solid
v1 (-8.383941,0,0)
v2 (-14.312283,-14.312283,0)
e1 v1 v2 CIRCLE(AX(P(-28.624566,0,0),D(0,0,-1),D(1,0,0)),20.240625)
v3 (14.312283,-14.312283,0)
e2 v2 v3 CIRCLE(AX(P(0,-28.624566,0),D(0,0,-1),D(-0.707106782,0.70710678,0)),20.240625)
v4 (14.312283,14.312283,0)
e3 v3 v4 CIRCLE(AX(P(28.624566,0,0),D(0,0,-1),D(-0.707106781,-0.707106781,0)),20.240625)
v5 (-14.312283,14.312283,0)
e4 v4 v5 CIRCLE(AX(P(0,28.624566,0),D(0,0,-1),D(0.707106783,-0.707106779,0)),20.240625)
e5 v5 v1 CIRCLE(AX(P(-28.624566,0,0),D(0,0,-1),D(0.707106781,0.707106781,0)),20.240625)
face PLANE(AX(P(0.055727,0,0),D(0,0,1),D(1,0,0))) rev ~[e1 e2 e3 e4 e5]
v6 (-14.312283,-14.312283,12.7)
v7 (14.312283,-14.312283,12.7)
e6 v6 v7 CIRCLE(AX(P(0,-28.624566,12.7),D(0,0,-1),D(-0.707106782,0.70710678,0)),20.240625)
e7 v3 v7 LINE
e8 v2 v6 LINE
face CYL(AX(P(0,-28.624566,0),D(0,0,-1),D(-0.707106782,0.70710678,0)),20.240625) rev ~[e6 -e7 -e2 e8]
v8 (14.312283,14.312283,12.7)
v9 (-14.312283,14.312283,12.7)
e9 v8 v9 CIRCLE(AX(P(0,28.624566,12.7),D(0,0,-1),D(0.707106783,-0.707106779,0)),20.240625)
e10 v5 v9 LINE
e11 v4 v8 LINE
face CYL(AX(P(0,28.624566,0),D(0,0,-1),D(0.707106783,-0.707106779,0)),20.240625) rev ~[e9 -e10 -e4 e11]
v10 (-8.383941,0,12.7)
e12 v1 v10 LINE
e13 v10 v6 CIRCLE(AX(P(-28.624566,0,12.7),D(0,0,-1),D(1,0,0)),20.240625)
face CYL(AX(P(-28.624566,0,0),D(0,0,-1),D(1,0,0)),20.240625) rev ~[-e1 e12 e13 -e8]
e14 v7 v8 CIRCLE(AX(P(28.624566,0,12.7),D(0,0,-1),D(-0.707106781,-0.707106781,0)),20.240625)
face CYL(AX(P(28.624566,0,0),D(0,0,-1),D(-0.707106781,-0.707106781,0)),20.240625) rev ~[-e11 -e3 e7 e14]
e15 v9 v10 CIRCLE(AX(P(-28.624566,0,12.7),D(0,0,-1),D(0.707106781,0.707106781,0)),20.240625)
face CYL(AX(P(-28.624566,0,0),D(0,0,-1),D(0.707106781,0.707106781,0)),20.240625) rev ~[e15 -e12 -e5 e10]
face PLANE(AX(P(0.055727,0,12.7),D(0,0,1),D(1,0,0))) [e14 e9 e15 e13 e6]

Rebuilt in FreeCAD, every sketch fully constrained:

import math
import FreeCAD as App
import Part
import Sketcher
from FreeCAD import Vector
Q = App.Units.Quantity

doc = App.newDocument("Part")
params = doc.addObject("Spreadsheet::Sheet", "Params")
for row, (alias, value) in enumerate([
    ("sketch1_radius", "0.796875 in"),
    ("pad1_length", "0.5 in"),
], start=1):
    params.set(f"A{row}", alias)
    params.set(f"B{row}", "=" + value)
    params.setAlias(f"B{row}", alias)

body = doc.addObject("PartDesign::Body", "Body")

# Sketch on XY plane
sketch1 = body.newObject("Sketcher::SketchObject", "Sketch")
sketch1.AttachmentSupport = (doc.getObject("XY_Plane"), [""])
sketch1.MapMode = "FlatFace"
sketch1.addGeometry([
    Part.ArcOfCircle(Part.Circle(Vector(29, 0, 0), Vector(0, 0, 1), 20), math.radians(135), math.radians(225)),  # 0
    Part.ArcOfCircle(Part.Circle(Vector(0, 29, 0), Vector(0, 0, 1), 20), math.radians(-135), math.radians(-45)),  # 1
    Part.ArcOfCircle(Part.Circle(Vector(-29, 0, 0), Vector(0, 0, 1), 20), math.radians(0), math.radians(45)),  # 2
    Part.ArcOfCircle(Part.Circle(Vector(-29, 0, 0), Vector(0, 0, 1), 20), math.radians(-45), math.radians(0)),  # 3
    Part.ArcOfCircle(Part.Circle(Vector(0, -29, 0), Vector(0, 0, 1), 20), math.radians(45), math.radians(135)),  # 4
], False)
sketch1.addConstraint([
    Sketcher.Constraint("Tangent", 0, 1, 1, 2),
    Sketcher.Constraint("Tangent", 1, 1, 2, 2),
    Sketcher.Constraint("Tangent", 2, 1, 3, 2),
    Sketcher.Constraint("Tangent", 3, 1, 4, 2),
    Sketcher.Constraint("Tangent", 4, 1, 0, 2),
    Sketcher.Constraint("Equal", 0, 1),
    Sketcher.Constraint("Equal", 1, 2),
    Sketcher.Constraint("Equal", 2, 3),
    Sketcher.Constraint("Equal", 3, 4),
    Sketcher.Constraint("Symmetric", 0, 3, 2, 3, -1, 1),
    Sketcher.Constraint("PointOnObject", 0, 3, -1),
    Sketcher.Constraint("PointOnObject", 2, 1, -1),
    Sketcher.Constraint("Radius", 0, Q("0.796875 in")),
    Sketcher.Constraint("DistanceX", 2, 1, -1, 1, Q("8.383941 mm")),
])
sketch1.setExpression("Constraints[12]", "Params.sketch1_radius")
pad1 = body.newObject("PartDesign::Pad", "Pad")
pad1.Profile = sketch1
pad1.setExpression("Length", "Params.pad1_length")

doc.recompute()
